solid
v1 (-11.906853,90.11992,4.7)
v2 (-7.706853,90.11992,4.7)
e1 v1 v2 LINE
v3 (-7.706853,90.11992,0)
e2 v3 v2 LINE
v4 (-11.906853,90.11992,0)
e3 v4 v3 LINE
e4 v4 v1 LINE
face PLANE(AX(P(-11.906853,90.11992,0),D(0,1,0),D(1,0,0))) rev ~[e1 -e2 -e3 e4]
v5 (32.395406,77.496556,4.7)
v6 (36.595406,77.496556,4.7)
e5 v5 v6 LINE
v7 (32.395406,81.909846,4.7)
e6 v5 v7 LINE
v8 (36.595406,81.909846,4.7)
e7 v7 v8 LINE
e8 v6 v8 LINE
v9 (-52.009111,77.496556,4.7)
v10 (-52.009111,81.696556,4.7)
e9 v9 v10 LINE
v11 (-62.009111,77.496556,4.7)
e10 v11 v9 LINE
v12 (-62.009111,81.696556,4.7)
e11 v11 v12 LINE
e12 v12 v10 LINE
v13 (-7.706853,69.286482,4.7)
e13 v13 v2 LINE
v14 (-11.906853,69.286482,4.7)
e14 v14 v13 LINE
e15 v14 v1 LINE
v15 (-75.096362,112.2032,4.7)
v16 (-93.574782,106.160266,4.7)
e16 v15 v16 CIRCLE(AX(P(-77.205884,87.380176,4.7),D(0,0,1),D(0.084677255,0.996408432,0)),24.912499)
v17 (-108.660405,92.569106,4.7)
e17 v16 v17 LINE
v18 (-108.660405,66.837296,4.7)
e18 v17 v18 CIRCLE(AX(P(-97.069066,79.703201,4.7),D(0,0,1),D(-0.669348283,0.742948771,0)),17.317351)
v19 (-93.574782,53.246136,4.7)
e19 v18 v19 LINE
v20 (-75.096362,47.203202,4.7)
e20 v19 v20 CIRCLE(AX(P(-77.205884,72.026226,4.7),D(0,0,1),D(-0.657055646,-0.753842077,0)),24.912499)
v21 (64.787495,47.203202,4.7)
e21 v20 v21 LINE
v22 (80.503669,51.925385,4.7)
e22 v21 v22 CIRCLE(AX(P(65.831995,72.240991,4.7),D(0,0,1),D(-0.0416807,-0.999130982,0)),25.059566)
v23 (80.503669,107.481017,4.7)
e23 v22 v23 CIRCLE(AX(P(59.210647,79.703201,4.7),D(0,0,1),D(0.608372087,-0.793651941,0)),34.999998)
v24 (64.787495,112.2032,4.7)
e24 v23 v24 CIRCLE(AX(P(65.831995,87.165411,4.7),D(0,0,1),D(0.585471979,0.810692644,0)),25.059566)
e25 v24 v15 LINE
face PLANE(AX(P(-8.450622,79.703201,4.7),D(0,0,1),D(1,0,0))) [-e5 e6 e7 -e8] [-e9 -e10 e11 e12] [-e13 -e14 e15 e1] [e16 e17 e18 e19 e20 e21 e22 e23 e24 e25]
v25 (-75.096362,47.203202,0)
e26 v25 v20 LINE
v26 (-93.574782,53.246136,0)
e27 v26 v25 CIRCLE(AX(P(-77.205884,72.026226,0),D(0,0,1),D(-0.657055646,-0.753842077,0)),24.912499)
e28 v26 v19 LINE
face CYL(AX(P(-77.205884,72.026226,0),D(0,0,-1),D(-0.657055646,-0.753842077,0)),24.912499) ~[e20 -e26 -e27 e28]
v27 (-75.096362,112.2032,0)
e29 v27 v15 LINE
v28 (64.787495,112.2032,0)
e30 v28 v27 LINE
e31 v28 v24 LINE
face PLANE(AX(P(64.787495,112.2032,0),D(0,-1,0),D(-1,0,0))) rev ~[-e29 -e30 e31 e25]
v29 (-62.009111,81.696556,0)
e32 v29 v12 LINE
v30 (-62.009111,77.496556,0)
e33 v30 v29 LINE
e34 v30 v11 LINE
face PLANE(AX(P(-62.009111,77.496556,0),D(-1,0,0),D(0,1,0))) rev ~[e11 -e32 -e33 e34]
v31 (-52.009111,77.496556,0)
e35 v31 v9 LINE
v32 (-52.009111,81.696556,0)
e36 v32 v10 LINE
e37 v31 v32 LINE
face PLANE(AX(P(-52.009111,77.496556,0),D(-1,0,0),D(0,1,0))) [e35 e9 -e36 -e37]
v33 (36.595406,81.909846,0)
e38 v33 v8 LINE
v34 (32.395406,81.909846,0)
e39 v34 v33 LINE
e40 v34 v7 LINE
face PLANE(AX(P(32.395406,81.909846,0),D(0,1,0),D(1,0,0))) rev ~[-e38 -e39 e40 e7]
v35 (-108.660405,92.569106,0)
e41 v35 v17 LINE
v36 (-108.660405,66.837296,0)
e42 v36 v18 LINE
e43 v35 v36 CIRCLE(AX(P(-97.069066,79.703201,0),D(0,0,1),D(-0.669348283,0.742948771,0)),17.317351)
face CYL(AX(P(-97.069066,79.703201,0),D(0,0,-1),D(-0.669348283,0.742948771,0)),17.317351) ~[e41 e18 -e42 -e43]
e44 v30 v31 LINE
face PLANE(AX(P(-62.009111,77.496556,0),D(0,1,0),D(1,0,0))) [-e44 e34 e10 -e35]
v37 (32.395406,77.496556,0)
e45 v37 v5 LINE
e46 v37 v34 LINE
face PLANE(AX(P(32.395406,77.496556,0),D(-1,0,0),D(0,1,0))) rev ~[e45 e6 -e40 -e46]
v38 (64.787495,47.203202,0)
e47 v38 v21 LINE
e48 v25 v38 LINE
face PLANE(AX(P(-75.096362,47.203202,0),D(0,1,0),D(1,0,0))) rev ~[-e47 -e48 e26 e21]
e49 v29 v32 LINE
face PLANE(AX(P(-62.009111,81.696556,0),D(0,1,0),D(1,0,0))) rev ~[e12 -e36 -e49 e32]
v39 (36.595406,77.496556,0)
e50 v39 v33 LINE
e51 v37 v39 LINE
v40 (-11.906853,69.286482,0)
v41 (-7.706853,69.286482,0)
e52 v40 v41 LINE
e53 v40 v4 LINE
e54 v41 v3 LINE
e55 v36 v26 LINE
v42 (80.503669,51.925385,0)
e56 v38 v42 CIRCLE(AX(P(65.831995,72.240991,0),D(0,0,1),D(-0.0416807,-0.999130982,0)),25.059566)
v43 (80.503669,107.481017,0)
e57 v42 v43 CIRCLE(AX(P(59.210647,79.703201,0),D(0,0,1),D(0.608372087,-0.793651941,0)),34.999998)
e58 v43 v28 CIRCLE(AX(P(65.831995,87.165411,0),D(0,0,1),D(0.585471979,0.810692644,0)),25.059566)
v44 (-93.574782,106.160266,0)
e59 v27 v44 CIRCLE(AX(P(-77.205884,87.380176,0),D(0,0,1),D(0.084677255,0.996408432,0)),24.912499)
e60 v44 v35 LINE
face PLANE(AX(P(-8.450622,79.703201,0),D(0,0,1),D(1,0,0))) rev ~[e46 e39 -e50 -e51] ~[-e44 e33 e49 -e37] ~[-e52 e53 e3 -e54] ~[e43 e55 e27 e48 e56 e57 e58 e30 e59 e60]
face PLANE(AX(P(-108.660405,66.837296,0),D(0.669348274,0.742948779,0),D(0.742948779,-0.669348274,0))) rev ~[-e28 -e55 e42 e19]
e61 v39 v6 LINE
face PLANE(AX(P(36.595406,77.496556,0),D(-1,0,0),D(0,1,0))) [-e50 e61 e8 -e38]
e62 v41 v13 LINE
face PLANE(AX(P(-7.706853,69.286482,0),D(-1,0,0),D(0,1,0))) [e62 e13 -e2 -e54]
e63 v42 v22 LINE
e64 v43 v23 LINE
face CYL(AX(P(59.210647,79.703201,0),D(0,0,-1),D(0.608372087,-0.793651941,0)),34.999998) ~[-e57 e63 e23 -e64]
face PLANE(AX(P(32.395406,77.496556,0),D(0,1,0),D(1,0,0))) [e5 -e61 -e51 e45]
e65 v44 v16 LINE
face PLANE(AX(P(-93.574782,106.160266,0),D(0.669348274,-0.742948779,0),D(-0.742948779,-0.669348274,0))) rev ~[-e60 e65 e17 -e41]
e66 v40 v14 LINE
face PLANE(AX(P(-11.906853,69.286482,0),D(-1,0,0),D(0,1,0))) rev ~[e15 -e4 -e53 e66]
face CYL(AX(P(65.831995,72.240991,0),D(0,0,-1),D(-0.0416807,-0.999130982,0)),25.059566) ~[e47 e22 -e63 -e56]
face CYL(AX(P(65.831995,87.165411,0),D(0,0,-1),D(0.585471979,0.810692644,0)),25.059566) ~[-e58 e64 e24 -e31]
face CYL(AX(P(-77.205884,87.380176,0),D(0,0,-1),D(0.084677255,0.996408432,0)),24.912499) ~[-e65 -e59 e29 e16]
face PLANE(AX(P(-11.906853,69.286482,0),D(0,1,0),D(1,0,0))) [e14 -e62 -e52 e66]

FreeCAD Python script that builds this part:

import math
import FreeCAD as App
import Part
import Sketcher
Q = App.Units.Quantity


def add_polygon(sketch, points):
    """Adds a closed chain of lines whose ends are joined by coincident constraints."""
    first, n = sketch.GeometryCount, len(points)
    for a, b in zip(points, points[1:] + points[:1]):
        sketch.addGeometry(Part.LineSegment(App.Vector(*a, 0), App.Vector(*b, 0)), False)
    for i in range(n):
        sketch.addConstraint(Sketcher.Constraint("Coincident", first + i, 2, first + (i + 1) % n, 1))

doc = App.newDocument("Part")
body = doc.addObject("PartDesign::Body", "Body")

sketch1 = body.newObject("Sketcher::SketchObject", "Sketch")
sketch1.AttachmentSupport = (doc.getObject("XY_Plane"), [""])
sketch1.MapMode = "FlatFace"
sketch1.addGeometry(Part.LineSegment(App.Vector(64.8, 112.2, 0), App.Vector(-75.1, 112.2, 0)), False)
sketch1.addGeometry(Part.ArcOfCircle(Part.Circle(App.Vector(-77.2, 87.4, 0), App.Vector(0, 0, 1), 24.9), math.radians(85), math.radians(131)), False)
sketch1.addGeometry(Part.LineSegment(App.Vector(-93.6, 106.2, 0), App.Vector(-108.7, 92.6, 0)), False)
sketch1.addGeometry(Part.ArcOfCircle(Part.Circle(App.Vector(-97.1, 79.7, 0), App.Vector(0, 0, 1), 17.3), math.radians(132), math.radians(228)), False)
sketch1.addGeometry(Part.LineSegment(App.Vector(-108.7, 66.8, 0), App.Vector(-93.6, 53.2, 0)), False)
sketch1.addGeometry(Part.ArcOfCircle(Part.Circle(App.Vector(-77.2, 72, 0), App.Vector(0, 0, 1), 24.9), math.radians(-131), math.radians(-85)), False)
sketch1.addGeometry(Part.LineSegment(App.Vector(-75.1, 47.2, 0), App.Vector(64.8, 47.2, 0)), False)
sketch1.addGeometry(Part.ArcOfCircle(Part.Circle(App.Vector(65.8, 72.2, 0), App.Vector(0, 0, 1), 25.1), math.radians(-92), math.radians(-54)), False)
sketch1.addGeometry(Part.ArcOfCircle(Part.Circle(App.Vector(59.2, 79.7, 0), App.Vector(0, 0, 1), 35), math.radians(-53), math.radians(53)), False)
sketch1.addGeometry(Part.ArcOfCircle(Part.Circle(App.Vector(65.8, 87.2, 0), App.Vector(0, 0, 1), 25.1), math.radians(54), math.radians(92)), False)
add_polygon(sketch1, [(-52, 77.5), (-62, 77.5), (-62, 81.7), (-52, 81.7)])
add_polygon(sketch1, [(-7.7, 69.3), (-11.9, 69.3), (-11.9, 90.1), (-7.7, 90.1)])
add_polygon(sketch1, [(36.6, 77.5), (32.4, 77.5), (32.4, 81.9), (36.6, 81.9)])
sketch1.addConstraint(Sketcher.Constraint("Coincident", 0, 2, 1, 1))
sketch1.addConstraint(Sketcher.Constraint("Coincident", 1, 2, 2, 1))
sketch1.addConstraint(Sketcher.Constraint("Tangent", 2, 2, 3, 1))
sketch1.addConstraint(Sketcher.Constraint("Tangent", 3, 2, 4, 1))
sketch1.addConstraint(Sketcher.Constraint("Coincident", 4, 2, 5, 1))
sketch1.addConstraint(Sketcher.Constraint("Coincident", 5, 2, 6, 1))
sketch1.addConstraint(Sketcher.Constraint("Coincident", 6, 2, 7, 1))
sketch1.addConstraint(Sketcher.Constraint("Coincident", 7, 2, 8, 1))
sketch1.addConstraint(Sketcher.Constraint("Coincident", 8, 2, 9, 1))
sketch1.addConstraint(Sketcher.Constraint("Coincident", 9, 2, 0, 1))
sketch1.addConstraint(Sketcher.Constraint("Horizontal", 0))
sketch1.addConstraint(Sketcher.Constraint("Horizontal", 6))
sketch1.addConstraint(Sketcher.Constraint("Horizontal", 10))
sketch1.addConstraint(Sketcher.Constraint("Vertical", 11))
sketch1.addConstraint(Sketcher.Constraint("Horizontal", 12))
sketch1.addConstraint(Sketcher.Constraint("Vertical", 13))
sketch1.addConstraint(Sketcher.Constraint("Horizontal", 14))
sketch1.addConstraint(Sketcher.Constraint("Vertical", 15))
sketch1.addConstraint(Sketcher.Constraint("Horizontal", 16))
sketch1.addConstraint(Sketcher.Constraint("Vertical", 17))
sketch1.addConstraint(Sketcher.Constraint("Horizontal", 18))
sketch1.addConstraint(Sketcher.Constraint("Vertical", 19))
sketch1.addConstraint(Sketcher.Constraint("Horizontal", 20))
sketch1.addConstraint(Sketcher.Constraint("Vertical", 21))
sketch1.addConstraint(Sketcher.Constraint("Equal", 1, 5))
sketch1.addConstraint(Sketcher.Constraint("Equal", 7, 9))
sketch1.addConstraint(Sketcher.Constraint("Horizontal", 3, 3, 8, 3))
sketch1.addConstraint(Sketcher.Constraint("Horizontal", 13, 2, 18, 2))
sketch1.addConstraint(Sketcher.Constraint("Vertical", 1, 3, 5, 3))
sketch1.addConstraint(Sketcher.Constraint("Vertical", 7, 3, 9, 3))
sketch1.addConstraint(Sketcher.Constraint("Vertical", 2, 2, 3, 2))
sketch1.addConstraint(Sketcher.Constraint("Vertical", 1, 2, 4, 2))
sketch1.addConstraint(Sketcher.Constraint("Vertical", 0, 2, 5, 2))
sketch1.addConstraint(Sketcher.Constraint("Vertical", 7, 2, 8, 2))
sketch1.addConstraint(Sketcher.Constraint("Equal", 16, 18))
sketch1.addConstraint(Sketcher.Constraint("Equal", 20, 11))
sketch1.addConstraint(Sketcher.Constraint("DistanceX", 10, 2, 10, 1, Q("10 mm")))
sketch1.addConstraint(Sketcher.Constraint("DistanceX", 14, 2, 14, 1, Q("4.2 mm")))
sketch1.addConstraint(Sketcher.Constraint("Radius", 1, Q("24.912499 mm")))
sketch1.addConstraint(Sketcher.Constraint("DistanceY", 3, 3, 0, 2, Q("32.499999 mm")))
sketch1.addConstraint(Sketcher.Constraint("Radius", 3, Q("17.317351 mm")))
sketch1.addConstraint(Sketcher.Constraint("Radius", 7, Q("25.059566 mm")))
sketch1.addConstraint(Sketcher.Constraint("Radius", 8, Q("34.999998 mm")))
sketch1.addConstraint(Sketcher.Constraint("DistanceY", 19, 1, 19, 2, Q("4.41329 mm")))
sketch1.addConstraint(Sketcher.Constraint("DistanceY", -1, 1, 3, 3, Q("79.703201 mm")))
sketch1.addConstraint(Sketcher.Constraint("DistanceX", 6, 2, 7, 3, Q("1.0445 mm")))
sketch1.addConstraint(Sketcher.Constraint("DistanceX", 0, 2, 0, 1, Q("139.883857 mm")))
sketch1.addConstraint(Sketcher.Constraint("DistanceY", 15, 1, 15, 2, Q("20.833438 mm")))
sketch1.addConstraint(Sketcher.Constraint("DistanceX", 0, 2, -1, 1, Q("75.096362 mm")))
sketch1.addConstraint(Sketcher.Constraint("DistanceX", 4, 2, -1, 1, Q("93.574782 mm")))
sketch1.addConstraint(Sketcher.Constraint("DistanceX", -1, 1, 7, 2, Q("80.503669 mm")))
sketch1.addConstraint(Sketcher.Constraint("DistanceX", 10, 2, -1, 1, Q("62.009111 mm")))
sketch1.addConstraint(Sketcher.Constraint("DistanceY", -1, 1, 15, 2, Q("90.11992 mm")))
sketch1.addConstraint(Sketcher.Constraint("DistanceX", 3, 3, 1, 3, Q("19.863181 mm")))
sketch1.addConstraint(Sketcher.Constraint("DistanceY", 5, 3, 1, 3, Q("15.35395 mm")))
sketch1.addConstraint(Sketcher.Constraint("DistanceY", 5, 3, 10, 2, Q("5.47033 mm")))
sketch1.addConstraint(Sketcher.Constraint("DistanceX", 5, 3, 14, 2, Q("65.299031 mm")))
sketch1.addConstraint(Sketcher.Constraint("DistanceX", 18, 2, 8, 3, Q("26.815241 mm")))
pad1 = body.newObject("PartDesign::Pad", "Pad")
pad1.Profile = sketch1
pad1.Length = 4.7

doc.recompute()
